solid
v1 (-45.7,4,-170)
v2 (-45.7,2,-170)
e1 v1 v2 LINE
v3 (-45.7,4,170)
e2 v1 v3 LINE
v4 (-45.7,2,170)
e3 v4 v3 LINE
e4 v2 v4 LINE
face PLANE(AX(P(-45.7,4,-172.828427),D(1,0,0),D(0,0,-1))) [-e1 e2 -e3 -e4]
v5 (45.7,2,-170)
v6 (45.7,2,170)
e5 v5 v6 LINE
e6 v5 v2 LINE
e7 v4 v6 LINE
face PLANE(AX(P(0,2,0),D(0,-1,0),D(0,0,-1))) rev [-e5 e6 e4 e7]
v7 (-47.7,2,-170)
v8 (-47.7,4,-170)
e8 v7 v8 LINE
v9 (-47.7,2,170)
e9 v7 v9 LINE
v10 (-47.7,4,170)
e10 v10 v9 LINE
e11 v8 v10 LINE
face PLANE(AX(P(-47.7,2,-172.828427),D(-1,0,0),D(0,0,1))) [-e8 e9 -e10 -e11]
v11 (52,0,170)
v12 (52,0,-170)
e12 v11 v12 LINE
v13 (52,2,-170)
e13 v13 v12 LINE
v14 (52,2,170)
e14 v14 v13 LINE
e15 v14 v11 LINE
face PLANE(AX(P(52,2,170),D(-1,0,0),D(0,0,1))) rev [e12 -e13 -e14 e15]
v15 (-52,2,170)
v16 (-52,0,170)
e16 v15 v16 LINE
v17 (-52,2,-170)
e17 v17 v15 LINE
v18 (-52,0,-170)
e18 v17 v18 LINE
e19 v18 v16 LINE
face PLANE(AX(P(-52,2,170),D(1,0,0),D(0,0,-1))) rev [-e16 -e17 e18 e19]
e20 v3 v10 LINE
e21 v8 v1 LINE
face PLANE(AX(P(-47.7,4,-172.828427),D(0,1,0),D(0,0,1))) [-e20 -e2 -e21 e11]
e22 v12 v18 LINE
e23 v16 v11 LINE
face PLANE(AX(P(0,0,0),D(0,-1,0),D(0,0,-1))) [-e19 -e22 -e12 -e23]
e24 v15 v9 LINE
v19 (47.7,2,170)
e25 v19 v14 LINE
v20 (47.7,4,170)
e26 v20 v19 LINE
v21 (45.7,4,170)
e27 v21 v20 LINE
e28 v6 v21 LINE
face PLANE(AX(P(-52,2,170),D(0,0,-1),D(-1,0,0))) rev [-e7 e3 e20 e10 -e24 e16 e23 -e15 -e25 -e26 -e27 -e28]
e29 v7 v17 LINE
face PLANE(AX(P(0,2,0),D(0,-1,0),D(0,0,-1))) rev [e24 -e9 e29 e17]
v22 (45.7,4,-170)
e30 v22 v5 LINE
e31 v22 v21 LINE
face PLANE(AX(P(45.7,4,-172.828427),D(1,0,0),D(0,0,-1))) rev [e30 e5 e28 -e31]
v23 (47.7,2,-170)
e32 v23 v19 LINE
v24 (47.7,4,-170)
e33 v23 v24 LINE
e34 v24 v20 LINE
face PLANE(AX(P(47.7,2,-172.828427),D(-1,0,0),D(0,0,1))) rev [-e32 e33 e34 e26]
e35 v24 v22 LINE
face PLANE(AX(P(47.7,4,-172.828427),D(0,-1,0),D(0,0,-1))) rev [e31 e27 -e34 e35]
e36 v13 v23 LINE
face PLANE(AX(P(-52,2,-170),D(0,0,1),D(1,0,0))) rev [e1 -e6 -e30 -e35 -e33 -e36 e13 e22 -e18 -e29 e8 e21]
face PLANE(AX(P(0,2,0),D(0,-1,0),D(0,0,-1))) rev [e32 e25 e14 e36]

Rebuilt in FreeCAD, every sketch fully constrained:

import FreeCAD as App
import Part
import Sketcher
Q = App.Units.Quantity

doc = App.newDocument("Part")
body = doc.addObject("PartDesign::Body", "Body")

sketch1 = body.newObject("Sketcher::SketchObject", "Sketch")
sketch1.AttachmentSupport = (doc.getObject("XZ_Plane"), [""])
sketch1.MapMode = "FlatFace"
sketch1.addGeometry(Part.LineSegment(App.Vector(-52, -170, 0), App.Vector(-52, 170, 0)), False)
sketch1.addGeometry(Part.LineSegment(App.Vector(-52, 170, 0), App.Vector(52, 170, 0)), False)
sketch1.addGeometry(Part.LineSegment(App.Vector(52, 170, 0), App.Vector(52, -170, 0)), False)
sketch1.addGeometry(Part.LineSegment(App.Vector(52, -170, 0), App.Vector(-52, -170, 0)), False)
sketch1.addConstraint(Sketcher.Constraint("Coincident", 0, 2, 1, 1))
sketch1.addConstraint(Sketcher.Constraint("Coincident", 1, 2, 2, 1))
sketch1.addConstraint(Sketcher.Constraint("Coincident", 2, 2, 3, 1))
sketch1.addConstraint(Sketcher.Constraint("Coincident", 3, 2, 0, 1))
sketch1.addConstraint(Sketcher.Constraint("Vertical", 0))
sketch1.addConstraint(Sketcher.Constraint("Horizontal", 1))
sketch1.addConstraint(Sketcher.Constraint("Vertical", 2))
sketch1.addConstraint(Sketcher.Constraint("Horizontal", 3))
sketch1.addConstraint(Sketcher.Constraint("Symmetric", 0, 2, 2, 2, -1, 1))
sketch1.addConstraint(Sketcher.Constraint("DistanceX", 1, 1, 1, 2, Q("104 mm")))
sketch1.addConstraint(Sketcher.Constraint("DistanceY", 0, 1, 0, 2, Q("340 mm")))
pad1 = body.newObject("PartDesign::Pad", "Pad")
pad1.Profile = sketch1
pad1.Length = 2
pad1.Reversed = True

sketch2 = body.newObject("Sketcher::SketchObject", "Sketch001")
sketch2.AttachmentSupport = (doc.getObject("XY_Plane"), [""])
sketch2.MapMode = "FlatFace"
sketch2.AttachmentOffset = App.Placement(App.Vector(0, 0, 170), App.Rotation())
sketch2.addGeometry(Part.LineSegment(App.Vector(-47.7, 4, 0), App.Vector(-47.7, 2, 0)), False)
sketch2.addGeometry(Part.LineSegment(App.Vector(-47.7, 2, 0), App.Vector(-45.7, 2, 0)), False)
sketch2.addGeometry(Part.LineSegment(App.Vector(-45.7, 2, 0), App.Vector(-45.7, 4, 0)), False)
sketch2.addGeometry(Part.LineSegment(App.Vector(-45.7, 4, 0), App.Vector(-47.7, 4, 0)), False)
sketch2.addConstraint(Sketcher.Constraint("Coincident", 0, 2, 1, 1))
sketch2.addConstraint(Sketcher.Constraint("Coincident", 1, 2, 2, 1))
sketch2.addConstraint(Sketcher.Constraint("Coincident", 2, 2, 3, 1))
sketch2.addConstraint(Sketcher.Constraint("Coincident", 3, 2, 0, 1))
sketch2.addConstraint(Sketcher.Constraint("Vertical", 0))
sketch2.addConstraint(Sketcher.Constraint("Horizontal", 1))
sketch2.addConstraint(Sketcher.Constraint("Vertical", 2))
sketch2.addConstraint(Sketcher.Constraint("Horizontal", 3))
sketch2.addConstraint(Sketcher.Constraint("Equal", 3, 0))
sketch2.addConstraint(Sketcher.Constraint("DistanceX", 1, 1, 1, 2, Q("2 mm")))
sketch2.addConstraint(Sketcher.Constraint("DistanceY", -1, 1, 0, 2, Q("2 mm")))
sketch2.addConstraint(Sketcher.Constraint("DistanceX", 0, 2, -1, 1, Q("47.7 mm")))
pad2 = body.newObject("PartDesign::Pad", "Pad001")
pad2.Profile = sketch2
pad2.Length = 340
pad2.Reversed = True
doc.recompute()

mirrored = body.newObject("PartDesign::Mirrored", "Mirrored")
mirrored.Originals = [pad2]
mirrored.MirrorPlane = (doc.getObject("YZ_Plane"), [""])
body.Tip = mirrored

doc.recompute()
